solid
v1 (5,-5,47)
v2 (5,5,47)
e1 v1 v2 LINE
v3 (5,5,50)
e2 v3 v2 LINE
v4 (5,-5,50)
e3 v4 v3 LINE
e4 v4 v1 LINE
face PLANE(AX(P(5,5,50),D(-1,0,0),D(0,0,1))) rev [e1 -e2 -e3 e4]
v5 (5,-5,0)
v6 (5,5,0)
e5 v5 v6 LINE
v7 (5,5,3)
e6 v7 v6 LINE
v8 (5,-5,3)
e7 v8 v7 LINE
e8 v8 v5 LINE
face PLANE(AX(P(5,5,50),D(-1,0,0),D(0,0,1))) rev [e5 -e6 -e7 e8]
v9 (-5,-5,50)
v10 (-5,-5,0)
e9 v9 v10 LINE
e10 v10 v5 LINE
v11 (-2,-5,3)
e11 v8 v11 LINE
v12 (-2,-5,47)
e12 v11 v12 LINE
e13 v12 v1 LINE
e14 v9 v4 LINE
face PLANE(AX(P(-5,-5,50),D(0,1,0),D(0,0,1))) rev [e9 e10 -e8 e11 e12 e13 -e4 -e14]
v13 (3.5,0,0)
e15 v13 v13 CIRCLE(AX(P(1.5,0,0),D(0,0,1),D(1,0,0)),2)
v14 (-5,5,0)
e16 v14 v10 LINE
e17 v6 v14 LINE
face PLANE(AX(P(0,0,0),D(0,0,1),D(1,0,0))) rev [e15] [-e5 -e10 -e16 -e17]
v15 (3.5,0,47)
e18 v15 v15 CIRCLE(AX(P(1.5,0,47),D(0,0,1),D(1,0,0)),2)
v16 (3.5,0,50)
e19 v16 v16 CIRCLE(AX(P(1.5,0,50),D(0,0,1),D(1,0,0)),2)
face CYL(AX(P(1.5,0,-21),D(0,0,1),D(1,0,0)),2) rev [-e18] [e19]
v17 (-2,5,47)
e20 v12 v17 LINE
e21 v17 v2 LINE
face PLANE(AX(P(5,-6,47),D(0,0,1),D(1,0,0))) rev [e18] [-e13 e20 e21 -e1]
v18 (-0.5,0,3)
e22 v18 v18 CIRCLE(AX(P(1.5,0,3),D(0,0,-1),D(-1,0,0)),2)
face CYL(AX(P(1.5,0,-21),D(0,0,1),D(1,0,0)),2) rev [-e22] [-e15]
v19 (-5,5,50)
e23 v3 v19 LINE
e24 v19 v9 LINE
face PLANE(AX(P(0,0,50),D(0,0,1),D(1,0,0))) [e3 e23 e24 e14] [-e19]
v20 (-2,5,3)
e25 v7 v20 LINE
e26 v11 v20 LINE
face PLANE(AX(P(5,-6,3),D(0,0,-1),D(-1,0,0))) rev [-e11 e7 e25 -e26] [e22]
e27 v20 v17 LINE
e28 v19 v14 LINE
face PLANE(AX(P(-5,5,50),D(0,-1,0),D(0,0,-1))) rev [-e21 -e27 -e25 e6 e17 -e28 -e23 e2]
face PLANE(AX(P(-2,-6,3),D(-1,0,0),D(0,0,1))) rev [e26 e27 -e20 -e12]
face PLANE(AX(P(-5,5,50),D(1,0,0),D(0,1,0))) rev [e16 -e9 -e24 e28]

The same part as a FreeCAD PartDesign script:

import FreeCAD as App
import Part
import Sketcher

V = App.Vector
Q = App.Units.Quantity


def add_polygon(sketch, points):
    """Adds a closed chain of lines whose ends are joined by coincident constraints."""
    first, n = sketch.GeometryCount, len(points)
    for a, b in zip(points, points[1:] + points[:1]):
        sketch.addGeometry(Part.LineSegment(App.Vector(*a, 0), App.Vector(*b, 0)), False)
    for i in range(n):
        sketch.addConstraint(Sketcher.Constraint("Coincident", first + i, 2, first + (i + 1) % n, 1))

doc = App.newDocument("Part")
body = doc.addObject("PartDesign::Body", "Body")

# Sketch on XY plane
sketch1 = body.newObject("Sketcher::SketchObject", "Sketch")
sketch1.AttachmentSupport = (doc.getObject("XY_Plane"), [""])
sketch1.MapMode = "FlatFace"
add_polygon(sketch1, [(-5, 5), (-5, -5), (5, -5), (5, 5)])  # lines 0-3
sketch1.addConstraint([
    Sketcher.Constraint("Vertical", 0),
    Sketcher.Constraint("Horizontal", 1),
    Sketcher.Constraint("Vertical", 2),
    Sketcher.Constraint("Horizontal", 3),
    Sketcher.Constraint("Symmetric", 0, 2, 2, 2, -1, 1),
    Sketcher.Constraint("Equal", 3, 0),
    Sketcher.Constraint("DistanceX", 1, 1, 1, 2, Q("10 mm")),
])
pad1 = body.newObject("PartDesign::Pad", "Pad")
pad1.Profile = sketch1
pad1.Length = 50

# Sketch on XZ plane
sketch2 = body.newObject("Sketcher::SketchObject", "Sketch001")
sketch2.AttachmentSupport = (doc.getObject("XZ_Plane"), [""])
sketch2.MapMode = "FlatFace"
sketch2.AttachmentOffset = App.Placement(V(0, 0, -5), App.Rotation())
add_polygon(sketch2, [(-2, 3), (-2, 47), (5, 47), (5, 3)])  # lines 0-3
sketch2.addConstraint([
    Sketcher.Constraint("Vertical", 0),
    Sketcher.Constraint("Horizontal", 1),
    Sketcher.Constraint("Vertical", 2),
    Sketcher.Constraint("Horizontal", 3),
    Sketcher.Constraint("DistanceX", 1, 1, 1, 2, Q("7 mm")),
    Sketcher.Constraint("DistanceY", 0, 1, 0, 2, Q("44 mm")),
    Sketcher.Constraint("DistanceX", 0, 2, -1, 1, Q("2 mm")),
    Sketcher.Constraint("DistanceY", -1, 1, 0, 2, Q("47 mm")),
])
pocket1 = body.newObject("PartDesign::Pocket", "Pocket")
pocket1.Profile = sketch2
pocket1.Length = 11
pocket1.Reversed = True

# Sketch on XY plane
sketch3 = body.newObject("Sketcher::SketchObject", "Sketch002")
sketch3.AttachmentSupport = (doc.getObject("XY_Plane"), [""])
sketch3.MapMode = "FlatFace"
sketch3.AttachmentOffset = App.Placement(V(0, 0, 50), App.Rotation())
sketch3.addGeometry(Part.Circle(V(1.5, 0, 0), V(0, 0, 1), 2), False)
sketch3.addConstraint([
    Sketcher.Constraint("PointOnObject", 0, 3, -1),
    Sketcher.Constraint("Diameter", 0, Q("4 mm")),
    Sketcher.Constraint("DistanceX", -1, 1, 0, 3, Q("1.5 mm")),
])
pocket2 = body.newObject("PartDesign::Pocket", "Pocket001")
pocket2.Profile = sketch3
pocket2.Length = 71

doc.recompute()
